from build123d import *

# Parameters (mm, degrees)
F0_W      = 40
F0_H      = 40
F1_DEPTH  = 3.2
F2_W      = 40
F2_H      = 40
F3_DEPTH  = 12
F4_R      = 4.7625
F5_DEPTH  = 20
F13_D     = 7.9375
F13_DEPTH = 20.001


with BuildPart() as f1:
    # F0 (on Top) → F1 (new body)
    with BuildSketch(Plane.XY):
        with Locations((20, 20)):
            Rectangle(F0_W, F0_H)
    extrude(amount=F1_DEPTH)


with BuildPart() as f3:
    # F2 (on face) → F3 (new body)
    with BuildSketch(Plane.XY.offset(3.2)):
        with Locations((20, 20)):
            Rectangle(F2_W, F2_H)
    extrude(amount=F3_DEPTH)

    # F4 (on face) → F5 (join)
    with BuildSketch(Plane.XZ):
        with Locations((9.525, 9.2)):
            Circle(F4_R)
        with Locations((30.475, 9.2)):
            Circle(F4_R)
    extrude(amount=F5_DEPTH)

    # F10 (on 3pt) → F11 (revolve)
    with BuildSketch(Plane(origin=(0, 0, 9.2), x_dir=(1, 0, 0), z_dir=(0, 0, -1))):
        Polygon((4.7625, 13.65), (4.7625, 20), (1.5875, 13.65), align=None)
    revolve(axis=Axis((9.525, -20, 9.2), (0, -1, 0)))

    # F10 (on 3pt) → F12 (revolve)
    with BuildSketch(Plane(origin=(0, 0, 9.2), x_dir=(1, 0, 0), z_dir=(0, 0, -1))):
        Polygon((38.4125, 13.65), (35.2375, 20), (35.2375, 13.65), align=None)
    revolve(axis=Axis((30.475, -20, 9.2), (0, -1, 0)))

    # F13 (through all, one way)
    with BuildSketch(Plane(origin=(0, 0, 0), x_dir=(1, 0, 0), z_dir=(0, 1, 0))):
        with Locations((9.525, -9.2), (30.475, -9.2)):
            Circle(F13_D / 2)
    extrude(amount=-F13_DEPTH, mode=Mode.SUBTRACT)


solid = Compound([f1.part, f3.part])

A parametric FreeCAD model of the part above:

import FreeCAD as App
import Part
import Sketcher


def add_polygon(sketch, points):
    """Adds a closed chain of lines whose ends are joined by coincident constraints."""
    first, n = sketch.GeometryCount, len(points)
    for a, b in zip(points, points[1:] + points[:1]):
        sketch.addGeometry(Part.LineSegment(App.Vector(*a, 0), App.Vector(*b, 0)), False)
    for i in range(n):
        sketch.addConstraint(Sketcher.Constraint("Coincident", first + i, 2, first + (i + 1) % n, 1))

doc = App.newDocument("Part")
body = doc.addObject("PartDesign::Body", "Body")

sketch1 = body.newObject("Sketcher::SketchObject", "Sketch")
sketch1.AttachmentSupport = (doc.getObject("XY_Plane"), [""])
sketch1.MapMode = "FlatFace"
add_polygon(sketch1, [(0, 40), (0, 0), (40, 0), (40, 40)])
sketch1.addConstraint([
    Sketcher.Constraint("Vertical", 0),
    Sketcher.Constraint("Horizontal", 1),
    Sketcher.Constraint("Vertical", 2),
    Sketcher.Constraint("Horizontal", 3),
    Sketcher.Constraint("Coincident", 0, 2, -1, 1),
    Sketcher.Constraint("Equal", 3, 0),
    Sketcher.Constraint("DistanceX", 1, 1, 1, 2, 40.0),
])
pad1 = body.newObject("PartDesign::Pad", "Pad")
pad1.Profile = sketch1
pad1.Length = 3.2
body2 = doc.addObject("PartDesign::Body", "Body001")

sketch2 = body2.newObject("Sketcher::SketchObject", "Sketch001")
sketch2.AttachmentSupport = (doc.getObject("XY_Plane001"), [""])
sketch2.MapMode = "FlatFace"
sketch2.AttachmentOffset = App.Placement(App.Vector(0, 0, 3.2), App.Rotation())
add_polygon(sketch2, [(0, 40), (0, 0), (40, 0), (40, 40)])
sketch2.addConstraint([
    Sketcher.Constraint("Vertical", 0),
    Sketcher.Constraint("Horizontal", 1),
    Sketcher.Constraint("Vertical", 2),
    Sketcher.Constraint("Horizontal", 3),
    Sketcher.Constraint("Coincident", 0, 2, -1, 1),
    Sketcher.Constraint("Equal", 3, 0),
    Sketcher.Constraint("DistanceX", 1, 1, 1, 2, 40.0),
])
pad2 = body2.newObject("PartDesign::Pad", "Pad001")
pad2.Profile = sketch2
pad2.Length = 12

sketch3 = body2.newObject("Sketcher::SketchObject", "Sketch002")
sketch3.AttachmentSupport = (doc.getObject("XZ_Plane001"), [""])
sketch3.MapMode = "FlatFace"
sketch3.addGeometry([
    Part.Circle(App.Vector(9.5, 9.2, 0), App.Vector(0, 0, 1), 4.8),
    Part.Circle(App.Vector(30.5, 9.2, 0), App.Vector(0, 0, 1), 4.8),
], False)
sketch3.addConstraint([
    Sketcher.Constraint("Equal", 0, 1),
    Sketcher.Constraint("Horizontal", 0, 3, 1, 3),
    Sketcher.Constraint("Diameter", 0, 9.525),
    Sketcher.Constraint("DistanceY", -1, 1, 0, 3, 9.2),
    Sketcher.Constraint("DistanceX", 0, 3, 1, 3, 20.95),
    Sketcher.Constraint("DistanceX", -1, 1, 0, 3, 9.525),
])
pad3 = body2.newObject("PartDesign::Pad", "Pad002")
pad3.Profile = sketch3
pad3.Length = 20

sketch4 = body2.newObject("Sketcher::SketchObject", "Sketch003")
sketch4.AttachmentSupport = (doc.getObject("XY_Plane001"), [""])
sketch4.MapMode = "FlatFace"
sketch4.AttachmentOffset = App.Placement(App.Vector(0, 0, 9.2), App.Rotation())
add_polygon(sketch4, [(4.8, -13.7), (4.8, -20), (1.6, -13.7)])
sketch4.addGeometry(Part.LineSegment(App.Vector(9.5, -13.7, 0), App.Vector(9.5, -20, 0)), True)
sketch4.addConstraint([
    Sketcher.Constraint("Vertical", 0),
    Sketcher.Constraint("Horizontal", 2),
    Sketcher.Constraint("Vertical", 3),
    Sketcher.Constraint("Horizontal", 2, 2, 3, 1),
    Sketcher.Constraint("Horizontal", 0, 2, 3, 2),
    Sketcher.Constraint("DistanceY", 0, 2, -1, 1, 20.0),
    Sketcher.Constraint("DistanceY", 0, 2, 0, 1, 6.35),
    Sketcher.Constraint("DistanceX", 2, 1, 2, 2, 3.175),
    Sketcher.Constraint("DistanceX", -1, 1, 3, 1, 9.525),
    Sketcher.Constraint("DistanceX", -1, 1, 0, 2, 4.7625),
])
revolution = body2.newObject("PartDesign::Revolution", "Revolution")
revolution.Profile = sketch4
revolution.ReferenceAxis = (sketch4, ["Axis0"])
revolution.Angle = 360

sketch5 = body2.newObject("Sketcher::SketchObject", "Sketch004")
sketch5.AttachmentSupport = (doc.getObject("XY_Plane001"), [""])
sketch5.MapMode = "FlatFace"
sketch5.AttachmentOffset = App.Placement(App.Vector(0, 0, 9.2), App.Rotation())
add_polygon(sketch5, [(38.4, -13.7), (35.2, -20), (35.2, -13.7)])
sketch5.addGeometry(Part.LineSegment(App.Vector(30.5, -13.7, 0), App.Vector(30.5, -20, 0)), True)
sketch5.addConstraint([
    Sketcher.Constraint("Vertical", 1),
    Sketcher.Constraint("Horizontal", 2),
    Sketcher.Constraint("Vertical", 3),
    Sketcher.Constraint("Horizontal", 2, 2, 3, 1),
    Sketcher.Constraint("Horizontal", 0, 2, 3, 2),
    Sketcher.Constraint("DistanceY", 0, 2, -1, 1, 20.0),
    Sketcher.Constraint("DistanceY", 1, 1, 1, 2, 6.35),
    Sketcher.Constraint("DistanceX", 2, 1, 2, 2, 3.175),
    Sketcher.Constraint("DistanceX", -1, 1, 3, 1, 30.475),
    Sketcher.Constraint("DistanceX", -1, 1, 0, 2, 35.2375),
])
revolution2 = body2.newObject("PartDesign::Revolution", "Revolution001")
revolution2.Profile = sketch5
revolution2.ReferenceAxis = (sketch5, ["Axis0"])
revolution2.Angle = 360

sketch6 = body2.newObject("Sketcher::SketchObject", "Sketch005")
sketch6.AttachmentSupport = (doc.getObject("XZ_Plane001"), [""])
sketch6.MapMode = "FlatFace"
sketch6.addGeometry([
    Part.Circle(App.Vector(30.5, 9.2, 0), App.Vector(0, 0, 1), 4),
    Part.Circle(App.Vector(9.5, 9.2, 0), App.Vector(0, 0, 1), 4),
], False)
sketch6.addConstraint([
    Sketcher.Constraint("Equal", 0, 1),
    Sketcher.Constraint("Horizontal", 0, 3, 1, 3),
    Sketcher.Constraint("Diameter", 0, 7.9375),
    Sketcher.Constraint("DistanceY", -1, 1, 0, 3, 9.2),
    Sketcher.Constraint("DistanceX", 1, 3, 0, 3, 20.95),
    Sketcher.Constraint("DistanceX", -1, 1, 0, 3, 30.475),
])
pocket1 = body2.newObject("PartDesign::Pocket", "Pocket")
pocket1.Profile = sketch6
pocket1.Type = "ThroughAll"
pocket1.Reversed = True

doc.recompute()
